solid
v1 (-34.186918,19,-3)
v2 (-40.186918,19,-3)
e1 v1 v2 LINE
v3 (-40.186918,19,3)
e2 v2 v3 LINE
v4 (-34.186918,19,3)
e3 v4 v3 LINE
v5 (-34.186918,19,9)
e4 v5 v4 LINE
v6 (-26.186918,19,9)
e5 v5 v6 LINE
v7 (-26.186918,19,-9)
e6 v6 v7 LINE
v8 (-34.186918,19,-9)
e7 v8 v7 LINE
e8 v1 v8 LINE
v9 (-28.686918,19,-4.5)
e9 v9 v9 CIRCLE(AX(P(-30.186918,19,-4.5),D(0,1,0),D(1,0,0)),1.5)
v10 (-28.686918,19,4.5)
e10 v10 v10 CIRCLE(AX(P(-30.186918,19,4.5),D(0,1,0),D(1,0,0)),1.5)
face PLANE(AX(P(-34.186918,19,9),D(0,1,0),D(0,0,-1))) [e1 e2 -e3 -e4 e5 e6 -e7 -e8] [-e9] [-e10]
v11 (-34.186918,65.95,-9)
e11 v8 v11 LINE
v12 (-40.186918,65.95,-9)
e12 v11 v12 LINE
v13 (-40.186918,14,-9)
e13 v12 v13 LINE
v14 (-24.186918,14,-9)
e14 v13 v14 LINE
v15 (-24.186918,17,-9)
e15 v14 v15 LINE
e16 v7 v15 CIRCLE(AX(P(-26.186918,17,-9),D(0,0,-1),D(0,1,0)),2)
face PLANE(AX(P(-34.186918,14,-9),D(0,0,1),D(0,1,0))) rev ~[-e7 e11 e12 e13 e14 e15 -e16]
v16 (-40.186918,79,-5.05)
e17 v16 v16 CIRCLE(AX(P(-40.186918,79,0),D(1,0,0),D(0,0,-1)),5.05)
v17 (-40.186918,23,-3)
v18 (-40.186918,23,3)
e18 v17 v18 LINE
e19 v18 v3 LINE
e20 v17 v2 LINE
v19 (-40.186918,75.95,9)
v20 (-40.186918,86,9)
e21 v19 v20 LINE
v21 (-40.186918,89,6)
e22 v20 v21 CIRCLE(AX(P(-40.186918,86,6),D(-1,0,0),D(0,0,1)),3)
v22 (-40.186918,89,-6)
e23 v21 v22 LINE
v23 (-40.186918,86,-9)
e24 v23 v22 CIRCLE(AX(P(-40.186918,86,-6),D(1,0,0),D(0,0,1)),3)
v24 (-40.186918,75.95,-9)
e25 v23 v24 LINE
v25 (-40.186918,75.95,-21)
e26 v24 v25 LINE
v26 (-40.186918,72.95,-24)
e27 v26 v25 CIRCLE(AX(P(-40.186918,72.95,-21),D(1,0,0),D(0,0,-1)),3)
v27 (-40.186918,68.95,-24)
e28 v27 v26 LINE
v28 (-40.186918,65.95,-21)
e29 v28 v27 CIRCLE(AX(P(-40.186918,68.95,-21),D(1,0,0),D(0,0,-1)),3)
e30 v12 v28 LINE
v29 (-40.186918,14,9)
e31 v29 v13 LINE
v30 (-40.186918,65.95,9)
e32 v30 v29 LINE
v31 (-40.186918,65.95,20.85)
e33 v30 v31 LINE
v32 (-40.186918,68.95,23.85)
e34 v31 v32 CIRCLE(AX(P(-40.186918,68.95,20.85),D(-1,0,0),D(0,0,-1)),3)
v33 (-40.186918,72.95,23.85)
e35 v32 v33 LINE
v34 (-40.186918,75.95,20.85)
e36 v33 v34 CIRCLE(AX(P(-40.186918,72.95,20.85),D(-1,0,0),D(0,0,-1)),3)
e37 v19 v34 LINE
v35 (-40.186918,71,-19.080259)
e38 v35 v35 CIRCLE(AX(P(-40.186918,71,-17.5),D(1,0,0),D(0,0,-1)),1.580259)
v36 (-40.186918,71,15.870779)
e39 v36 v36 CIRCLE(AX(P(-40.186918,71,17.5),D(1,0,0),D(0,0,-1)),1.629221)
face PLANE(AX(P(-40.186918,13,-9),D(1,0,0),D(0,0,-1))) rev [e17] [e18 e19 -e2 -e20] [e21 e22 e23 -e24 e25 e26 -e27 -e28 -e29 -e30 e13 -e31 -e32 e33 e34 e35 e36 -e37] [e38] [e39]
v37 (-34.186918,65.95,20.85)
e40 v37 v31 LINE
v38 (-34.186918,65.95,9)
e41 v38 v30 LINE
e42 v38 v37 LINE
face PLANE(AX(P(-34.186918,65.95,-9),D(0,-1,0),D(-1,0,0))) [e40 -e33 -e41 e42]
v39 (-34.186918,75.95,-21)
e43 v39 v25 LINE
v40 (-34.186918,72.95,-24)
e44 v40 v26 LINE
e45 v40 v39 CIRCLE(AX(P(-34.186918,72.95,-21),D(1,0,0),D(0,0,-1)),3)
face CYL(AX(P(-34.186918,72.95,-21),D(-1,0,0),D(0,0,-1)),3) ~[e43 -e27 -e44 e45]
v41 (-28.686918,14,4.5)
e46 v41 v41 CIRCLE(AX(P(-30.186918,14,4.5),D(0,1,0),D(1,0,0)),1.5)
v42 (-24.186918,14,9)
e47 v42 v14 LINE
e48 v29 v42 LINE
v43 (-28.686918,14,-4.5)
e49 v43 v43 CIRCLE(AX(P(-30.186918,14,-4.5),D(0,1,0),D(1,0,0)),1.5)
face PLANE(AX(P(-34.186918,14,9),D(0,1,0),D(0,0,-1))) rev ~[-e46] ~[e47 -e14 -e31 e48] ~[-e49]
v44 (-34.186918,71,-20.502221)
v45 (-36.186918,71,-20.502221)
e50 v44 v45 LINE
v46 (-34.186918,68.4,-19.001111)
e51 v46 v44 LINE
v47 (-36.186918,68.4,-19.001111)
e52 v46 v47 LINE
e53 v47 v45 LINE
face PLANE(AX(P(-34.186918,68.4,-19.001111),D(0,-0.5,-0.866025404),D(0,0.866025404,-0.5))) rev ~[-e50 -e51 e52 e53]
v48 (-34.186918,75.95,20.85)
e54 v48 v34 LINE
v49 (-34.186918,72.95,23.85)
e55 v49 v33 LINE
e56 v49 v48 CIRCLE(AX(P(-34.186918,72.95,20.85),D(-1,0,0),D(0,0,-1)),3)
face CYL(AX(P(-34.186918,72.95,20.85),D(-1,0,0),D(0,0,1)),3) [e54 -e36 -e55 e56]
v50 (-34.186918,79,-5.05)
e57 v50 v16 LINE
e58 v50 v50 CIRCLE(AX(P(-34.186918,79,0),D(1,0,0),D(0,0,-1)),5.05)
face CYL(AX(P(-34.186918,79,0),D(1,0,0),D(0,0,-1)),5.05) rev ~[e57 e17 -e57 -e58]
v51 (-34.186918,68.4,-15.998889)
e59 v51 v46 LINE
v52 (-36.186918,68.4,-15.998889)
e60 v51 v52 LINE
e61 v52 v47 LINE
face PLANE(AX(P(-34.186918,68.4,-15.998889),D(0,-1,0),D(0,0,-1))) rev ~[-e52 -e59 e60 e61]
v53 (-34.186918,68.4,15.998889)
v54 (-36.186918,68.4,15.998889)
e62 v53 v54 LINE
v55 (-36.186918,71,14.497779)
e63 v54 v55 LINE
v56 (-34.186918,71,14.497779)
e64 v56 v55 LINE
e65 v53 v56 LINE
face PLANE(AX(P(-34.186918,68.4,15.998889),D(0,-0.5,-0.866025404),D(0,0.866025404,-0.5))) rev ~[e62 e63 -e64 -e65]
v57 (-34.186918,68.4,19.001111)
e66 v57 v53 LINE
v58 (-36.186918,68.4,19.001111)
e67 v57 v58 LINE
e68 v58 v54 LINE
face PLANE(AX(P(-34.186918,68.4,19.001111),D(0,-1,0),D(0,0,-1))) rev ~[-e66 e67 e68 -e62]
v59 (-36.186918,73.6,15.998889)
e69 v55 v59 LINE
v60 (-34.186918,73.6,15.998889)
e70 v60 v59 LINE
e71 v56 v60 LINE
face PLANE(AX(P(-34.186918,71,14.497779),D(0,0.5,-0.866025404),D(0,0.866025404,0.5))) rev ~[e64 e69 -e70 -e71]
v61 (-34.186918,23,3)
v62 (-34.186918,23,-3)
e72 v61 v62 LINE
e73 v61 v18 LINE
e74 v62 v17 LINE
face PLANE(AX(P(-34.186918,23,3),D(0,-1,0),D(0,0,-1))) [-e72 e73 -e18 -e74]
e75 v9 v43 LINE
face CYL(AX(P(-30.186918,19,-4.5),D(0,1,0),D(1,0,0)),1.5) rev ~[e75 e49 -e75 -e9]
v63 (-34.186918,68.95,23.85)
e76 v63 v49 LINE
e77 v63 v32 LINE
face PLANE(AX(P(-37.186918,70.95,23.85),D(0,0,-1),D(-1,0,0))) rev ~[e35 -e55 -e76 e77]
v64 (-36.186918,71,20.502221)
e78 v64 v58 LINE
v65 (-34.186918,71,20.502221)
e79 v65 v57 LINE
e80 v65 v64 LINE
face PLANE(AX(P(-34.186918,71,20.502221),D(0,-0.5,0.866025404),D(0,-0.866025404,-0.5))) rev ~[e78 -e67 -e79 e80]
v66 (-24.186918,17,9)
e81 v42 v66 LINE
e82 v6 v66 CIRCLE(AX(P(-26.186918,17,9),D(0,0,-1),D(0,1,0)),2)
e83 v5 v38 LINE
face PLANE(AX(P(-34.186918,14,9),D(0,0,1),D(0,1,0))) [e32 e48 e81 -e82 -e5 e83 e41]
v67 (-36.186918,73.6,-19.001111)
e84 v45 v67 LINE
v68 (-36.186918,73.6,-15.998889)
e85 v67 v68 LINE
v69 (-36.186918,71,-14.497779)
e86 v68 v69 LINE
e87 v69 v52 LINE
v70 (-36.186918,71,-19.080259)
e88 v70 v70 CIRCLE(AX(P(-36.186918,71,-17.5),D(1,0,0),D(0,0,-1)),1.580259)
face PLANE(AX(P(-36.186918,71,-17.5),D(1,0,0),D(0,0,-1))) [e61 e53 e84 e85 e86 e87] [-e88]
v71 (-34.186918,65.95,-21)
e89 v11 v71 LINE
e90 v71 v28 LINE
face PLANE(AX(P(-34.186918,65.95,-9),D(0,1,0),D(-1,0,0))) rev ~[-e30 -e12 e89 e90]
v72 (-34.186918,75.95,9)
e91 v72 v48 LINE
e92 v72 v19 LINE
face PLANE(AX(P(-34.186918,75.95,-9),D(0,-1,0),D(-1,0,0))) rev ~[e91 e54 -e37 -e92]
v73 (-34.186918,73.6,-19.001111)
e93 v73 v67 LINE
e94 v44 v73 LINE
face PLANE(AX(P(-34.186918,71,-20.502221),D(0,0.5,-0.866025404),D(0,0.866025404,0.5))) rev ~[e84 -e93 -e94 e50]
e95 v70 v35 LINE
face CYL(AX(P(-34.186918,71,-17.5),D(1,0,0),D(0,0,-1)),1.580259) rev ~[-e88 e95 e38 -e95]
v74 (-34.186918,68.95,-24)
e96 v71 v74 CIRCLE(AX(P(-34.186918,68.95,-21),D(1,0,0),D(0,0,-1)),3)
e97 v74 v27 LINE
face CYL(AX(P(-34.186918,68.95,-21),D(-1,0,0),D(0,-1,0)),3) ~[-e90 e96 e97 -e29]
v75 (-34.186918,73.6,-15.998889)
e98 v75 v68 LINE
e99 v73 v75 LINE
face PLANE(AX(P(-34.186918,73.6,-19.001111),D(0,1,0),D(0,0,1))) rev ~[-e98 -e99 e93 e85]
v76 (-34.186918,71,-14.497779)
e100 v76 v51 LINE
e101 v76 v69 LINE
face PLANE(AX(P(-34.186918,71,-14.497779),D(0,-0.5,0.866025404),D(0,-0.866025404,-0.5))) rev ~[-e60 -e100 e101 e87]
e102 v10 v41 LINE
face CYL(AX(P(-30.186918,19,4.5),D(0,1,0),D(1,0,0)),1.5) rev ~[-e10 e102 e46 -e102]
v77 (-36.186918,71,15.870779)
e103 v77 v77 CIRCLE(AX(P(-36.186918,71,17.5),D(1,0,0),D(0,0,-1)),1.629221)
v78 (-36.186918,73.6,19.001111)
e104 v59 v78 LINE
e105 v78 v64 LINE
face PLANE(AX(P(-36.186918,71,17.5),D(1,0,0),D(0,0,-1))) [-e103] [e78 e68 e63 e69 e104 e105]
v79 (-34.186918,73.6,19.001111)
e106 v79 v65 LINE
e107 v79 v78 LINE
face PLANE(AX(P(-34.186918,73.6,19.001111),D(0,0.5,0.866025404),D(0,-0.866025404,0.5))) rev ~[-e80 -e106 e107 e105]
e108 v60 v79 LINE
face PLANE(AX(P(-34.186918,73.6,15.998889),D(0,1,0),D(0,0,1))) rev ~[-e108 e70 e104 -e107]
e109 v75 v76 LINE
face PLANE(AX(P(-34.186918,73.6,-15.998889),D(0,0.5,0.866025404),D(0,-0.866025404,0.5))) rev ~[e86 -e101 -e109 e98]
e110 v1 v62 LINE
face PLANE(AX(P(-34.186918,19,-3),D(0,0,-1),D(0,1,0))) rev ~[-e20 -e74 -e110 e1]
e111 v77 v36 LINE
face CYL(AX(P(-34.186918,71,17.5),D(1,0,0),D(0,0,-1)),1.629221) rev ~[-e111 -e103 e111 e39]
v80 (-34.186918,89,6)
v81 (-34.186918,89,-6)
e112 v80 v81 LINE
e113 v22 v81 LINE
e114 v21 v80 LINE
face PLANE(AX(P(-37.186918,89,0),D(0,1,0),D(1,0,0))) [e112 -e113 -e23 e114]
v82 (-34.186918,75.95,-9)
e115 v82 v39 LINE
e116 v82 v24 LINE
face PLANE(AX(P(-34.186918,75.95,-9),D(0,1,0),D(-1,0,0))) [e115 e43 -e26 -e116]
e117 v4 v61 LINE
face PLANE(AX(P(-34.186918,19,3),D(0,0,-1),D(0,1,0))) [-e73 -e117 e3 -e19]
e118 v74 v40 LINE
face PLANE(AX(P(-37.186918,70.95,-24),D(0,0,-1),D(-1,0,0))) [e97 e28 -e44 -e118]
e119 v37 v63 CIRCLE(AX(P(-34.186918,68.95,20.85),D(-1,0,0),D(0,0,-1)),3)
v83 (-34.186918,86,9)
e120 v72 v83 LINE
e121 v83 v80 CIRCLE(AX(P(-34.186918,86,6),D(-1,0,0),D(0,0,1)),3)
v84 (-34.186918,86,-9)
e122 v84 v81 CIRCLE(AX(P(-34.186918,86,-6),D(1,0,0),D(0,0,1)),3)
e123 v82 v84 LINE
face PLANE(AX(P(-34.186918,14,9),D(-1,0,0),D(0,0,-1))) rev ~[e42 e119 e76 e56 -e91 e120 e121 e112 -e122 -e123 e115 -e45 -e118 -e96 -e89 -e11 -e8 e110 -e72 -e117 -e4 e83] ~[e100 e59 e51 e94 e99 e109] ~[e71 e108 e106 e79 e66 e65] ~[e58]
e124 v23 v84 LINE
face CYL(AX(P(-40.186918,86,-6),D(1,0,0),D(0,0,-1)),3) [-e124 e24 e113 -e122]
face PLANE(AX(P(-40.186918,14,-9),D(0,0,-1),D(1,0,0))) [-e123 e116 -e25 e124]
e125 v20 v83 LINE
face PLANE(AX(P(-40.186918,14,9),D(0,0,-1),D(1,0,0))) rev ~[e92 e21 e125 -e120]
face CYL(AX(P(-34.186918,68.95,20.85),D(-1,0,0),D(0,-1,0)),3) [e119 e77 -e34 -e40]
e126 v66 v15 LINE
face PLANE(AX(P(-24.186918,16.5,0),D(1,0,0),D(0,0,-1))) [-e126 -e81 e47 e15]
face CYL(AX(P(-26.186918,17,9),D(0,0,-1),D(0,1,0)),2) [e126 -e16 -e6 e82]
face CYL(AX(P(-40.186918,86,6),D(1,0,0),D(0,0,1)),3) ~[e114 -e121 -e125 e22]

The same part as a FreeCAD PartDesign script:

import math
import FreeCAD as App
import Part
import Sketcher
Q = App.Units.Quantity


def edges_at(feature, points):
    """Names of the edges that pass closest to the given points."""
    edges = feature.Shape.Edges
    near = lambda p: min(range(len(edges)), key=lambda i: edges[i].distToShape(Part.Vertex(*p))[0])
    return sorted({f"Edge{near(p) + 1}" for p in points})

doc = App.newDocument("Part")
body = doc.addObject("PartDesign::Body", "Body")

sketch1 = doc.addObject("Sketcher::SketchObject", "Sketch")
body.addObject(sketch1)
sketch1.AttachmentSupport = (doc.XZ_Plane, [""])
sketch1.MapMode = "FlatFace"
sketch1.addGeometry([
    Part.Circle(App.Vector(0, 0, 0), App.Vector(0, 0, 1), 17),
    Part.Circle(App.Vector(0, 0, 0), App.Vector(0, 0, 1), 12),
], False)
sketch1.addConstraint([
    Sketcher.Constraint("Coincident", 0, 3, -1, 1),
    Sketcher.Constraint("Coincident", 1, 3, -1, 1),
    Sketcher.Constraint("Diameter", 0, 34.9),
    Sketcher.Constraint("Diameter", 1, 24.9),
])
pad1 = doc.addObject("PartDesign::Pad", "Pad")
body.addObject(pad1)
pad1.Profile = sketch1
pad1.Length = 8
pad1.Reversed = True

sketch2 = doc.addObject("Sketcher::SketchObject", "Sketch001")
body.addObject(sketch2)
sketch2.AttachmentSupport = (doc.XZ_Plane, [""])
sketch2.MapMode = "FlatFace"
sketch2.AttachmentOffset = App.Placement(App.Vector(0, 0, -8), App.Rotation())
sketch2.addGeometry([
    Part.Circle(App.Vector(0, 0, 0), App.Vector(0, 0, 1), 20),
    Part.Circle(App.Vector(0, 0, 0), App.Vector(0, 0, 1), 12),
], False)
sketch2.addConstraint([
    Sketcher.Constraint("Coincident", 0, 3, -1, 1),
    Sketcher.Constraint("Coincident", 1, 3, -1, 1),
    Sketcher.Constraint("Diameter", 0, 40.0),
    Sketcher.Constraint("Diameter", 1, 24.9),
])
pad2 = doc.addObject("PartDesign::Pad", "Pad001")
body.addObject(pad2)
pad2.Profile = sketch2
pad2.Length = 2
pad2.Reversed = True

sketch3 = doc.addObject("Sketcher::SketchObject", "Sketch002")
body.addObject(sketch3)
sketch3.AttachmentSupport = (doc.XZ_Plane, [""])
sketch3.MapMode = "FlatFace"
sketch3.AttachmentOffset = App.Placement(App.Vector(0, 0, -10), App.Rotation())
sketch3.addGeometry([
    Part.Circle(App.Vector(0, 0, 0), App.Vector(0, 0, 1), 32),
    Part.Circle(App.Vector(0, 0, 0), App.Vector(0, 0, 1), 12),
], False)
sketch3.addConstraint([
    Sketcher.Constraint("Coincident", 0, 3, -1, 1),
    Sketcher.Constraint("Coincident", 1, 3, -1, 1),
    Sketcher.Constraint("Diameter", 0, 65.0),
    Sketcher.Constraint("Diameter", 1, 24.9),
])
pad3 = doc.addObject("PartDesign::Pad", "Pad002")
body.addObject(pad3)
pad3.Profile = sketch3
pad3.Length = 4
pad3.Reversed = True
doc.recompute()

fillet = doc.addObject("PartDesign::Fillet", "Fillet")
body.addObject(fillet)
fillet.Base = (pad3, edges_at(pad3, [(-32.5, 14, 0)]))
fillet.Radius = 1

sketch4 = doc.addObject("Sketcher::SketchObject", "Sketch003")
body.addObject(sketch4)
sketch4.AttachmentSupport = (doc.XZ_Plane, [""])
sketch4.MapMode = "FlatFace"
sketch4.AttachmentOffset = App.Placement(App.Vector(0, 0, -10), App.Rotation())
sketch4.addGeometry([
    Part.LineSegment(App.Vector(30, -9, 0), App.Vector(30, 9, 0)),
    Part.LineSegment(App.Vector(30, 9, 0), App.Vector(40, 9, 0)),
    Part.LineSegment(App.Vector(40, 9, 0), App.Vector(40, -9, 0)),
    Part.LineSegment(App.Vector(40, -9, 0), App.Vector(30, -9, 0)),
    Part.LineSegment(App.Vector(-40, -9, 0), App.Vector(-40, 9, 0)),
    Part.LineSegment(App.Vector(-40, 9, 0), App.Vector(-30, 9, 0)),
    Part.LineSegment(App.Vector(-30, 9, 0), App.Vector(-30, -9, 0)),
    Part.LineSegment(App.Vector(-30, -9, 0), App.Vector(-40, -9, 0)),
], False)
sketch4.addConstraint([
    Sketcher.Constraint("Coincident", 0, 2, 1, 1),
    Sketcher.Constraint("Coincident", 1, 2, 2, 1),
    Sketcher.Constraint("Coincident", 2, 2, 3, 1),
    Sketcher.Constraint("Coincident", 3, 2, 0, 1),
    Sketcher.Constraint("Coincident", 4, 2, 5, 1),
    Sketcher.Constraint("Coincident", 5, 2, 6, 1),
    Sketcher.Constraint("Coincident", 6, 2, 7, 1),
    Sketcher.Constraint("Coincident", 7, 2, 4, 1),
    Sketcher.Constraint("Vertical", 0),
    Sketcher.Constraint("Horizontal", 1),
    Sketcher.Constraint("Vertical", 2),
    Sketcher.Constraint("Horizontal", 3),
    Sketcher.Constraint("Vertical", 4),
    Sketcher.Constraint("Horizontal", 5),
    Sketcher.Constraint("Vertical", 6),
    Sketcher.Constraint("Horizontal", 7),
    Sketcher.Constraint("Symmetric", 2, 2, 4, 2, -1, 1),
    Sketcher.Constraint("Symmetric", 0, 2, 6, 2, -1, 1),
    Sketcher.Constraint("Horizontal", 1, 2, 4, 2),
    Sketcher.Constraint("DistanceX", 1, 1, 1, 2, 10.0),
    Sketcher.Constraint("DistanceY", 0, 1, 0, 2, 18.0),
    Sketcher.Constraint("DistanceX", -1, 1, 0, 2, 30.186918),
])
pad4 = doc.addObject("PartDesign::Pad", "Pad003")
body.addObject(pad4)
pad4.Profile = sketch4
pad4.Length = 4
pad4.Reversed = True

sketch5 = doc.addObject("Sketcher::SketchObject", "Sketch004")
body.addObject(sketch5)
sketch5.AttachmentSupport = (doc.XZ_Plane, [""])
sketch5.MapMode = "FlatFace"
sketch5.AttachmentOffset = App.Placement(App.Vector(0, 0, -14), App.Rotation())
sketch5.addGeometry([
    Part.LineSegment(App.Vector(-40, -9, 0), App.Vector(-40, 9, 0)),
    Part.LineSegment(App.Vector(-40, 9, 0), App.Vector(-34, 9, 0)),
    Part.LineSegment(App.Vector(-34, 9, 0), App.Vector(-34, -9, 0)),
    Part.LineSegment(App.Vector(-34, -9, 0), App.Vector(-40, -9, 0)),
    Part.LineSegment(App.Vector(34, -9, 0), App.Vector(34, 9, 0)),
    Part.LineSegment(App.Vector(34, 9, 0), App.Vector(40, 9, 0)),
    Part.LineSegment(App.Vector(40, 9, 0), App.Vector(40, -9, 0)),
    Part.LineSegment(App.Vector(40, -9, 0), App.Vector(34, -9, 0)),
], False)
sketch5.addConstraint([
    Sketcher.Constraint("Coincident", 0, 2, 1, 1),
    Sketcher.Constraint("Coincident", 1, 2, 2, 1),
    Sketcher.Constraint("Coincident", 2, 2, 3, 1),
    Sketcher.Constraint("Coincident", 3, 2, 0, 1),
    Sketcher.Constraint("Coincident", 4, 2, 5, 1),
    Sketcher.Constraint("Coincident", 5, 2, 6, 1),
    Sketcher.Constraint("Coincident", 6, 2, 7, 1),
    Sketcher.Constraint("Coincident", 7, 2, 4, 1),
    Sketcher.Constraint("Vertical", 0),
    Sketcher.Constraint("Horizontal", 1),
    Sketcher.Constraint("Vertical", 2),
    Sketcher.Constraint("Horizontal", 3),
    Sketcher.Constraint("Vertical", 4),
    Sketcher.Constraint("Horizontal", 5),
    Sketcher.Constraint("Vertical", 6),
    Sketcher.Constraint("Horizontal", 7),
    Sketcher.Constraint("Symmetric", 2, 2, 4, 2, -1, 1),
    Sketcher.Constraint("Symmetric", 0, 2, 6, 2, -1, 1),
    Sketcher.Constraint("Horizontal", 1, 2, 4, 2),
    Sketcher.Constraint("DistanceX", 1, 1, 1, 2, 6.0),
    Sketcher.Constraint("DistanceY", 0, 1, 0, 2, 18.0),
    Sketcher.Constraint("DistanceX", 0, 2, -1, 1, 40.186918),
])
pad5 = doc.addObject("PartDesign::Pad", "Pad004")
body.addObject(pad5)
pad5.Profile = sketch5
pad5.Type = "TwoLengths"
pad5.Length = 75
pad5.Length2 = 4
pad5.Reversed = True

sketch6 = doc.addObject("Sketcher::SketchObject", "Sketch005")
body.addObject(sketch6)
sketch6.AttachmentSupport = (doc.YZ_Plane, [""])
sketch6.MapMode = "FlatFace"
sketch6.AttachmentOffset = App.Placement(App.Vector(0, 0, 34.186918), App.Rotation())
sketch6.addGeometry(Part.Circle(App.Vector(79, 0, 0), App.Vector(0, 0, 1), 5), False)
sketch6.addConstraint([
    Sketcher.Constraint("PointOnObject", 0, 3, -1),
    Sketcher.Constraint("Diameter", 0, 10.1),
    Sketcher.Constraint("DistanceX", -1, 1, 0, 3, 79.0),
])
pocket1 = doc.addObject("PartDesign::Pocket", "Pocket")
body.addObject(pocket1)
pocket1.Profile = sketch6
pocket1.Type = "ThroughAll"
pocket1.Midplane = True

sketch7 = doc.addObject("Sketcher::SketchObject", "Sketch006")
body.addObject(sketch7)
sketch7.AttachmentSupport = (doc.XY_Plane, [""])
sketch7.MapMode = "FlatFace"
sketch7.AttachmentOffset = App.Placement(App.Vector(0, 0, -9), App.Rotation())
sketch7.addGeometry([
    Part.LineSegment(App.Vector(-34, 76, 0), App.Vector(-34, 66, 0)),
    Part.LineSegment(App.Vector(-34, 66, 0), App.Vector(-40, 66, 0)),
    Part.LineSegment(App.Vector(-40, 66, 0), App.Vector(-40, 76, 0)),
    Part.LineSegment(App.Vector(-40, 76, 0), App.Vector(-34, 76, 0)),
], False)
sketch7.addConstraint([
    Sketcher.Constraint("Coincident", 0, 2, 1, 1),
    Sketcher.Constraint("Coincident", 1, 2, 2, 1),
    Sketcher.Constraint("Coincident", 2, 2, 3, 1),
    Sketcher.Constraint("Coincident", 3, 2, 0, 1),
    Sketcher.Constraint("Vertical", 0),
    Sketcher.Constraint("Horizontal", 1),
    Sketcher.Constraint("Vertical", 2),
    Sketcher.Constraint("Horizontal", 3),
    Sketcher.Constraint("DistanceX", 1, 2, 1, 1, 6.0),
    Sketcher.Constraint("DistanceY", 0, 2, 0, 1, 10.0),
    Sketcher.Constraint("DistanceY", -1, 1, 0, 2, 65.95),
    Sketcher.Constraint("DistanceX", 0, 2, -1, 1, 34.186918),
])
pad6 = doc.addObject("PartDesign::Pad", "Pad005")
body.addObject(pad6)
pad6.Profile = sketch7
pad6.Type = "TwoLengths"
pad6.Length = 15
pad6.Length2 = 32.85
pad6.Reversed = True

sketch8 = doc.addObject("Sketcher::SketchObject", "Sketch007")
body.addObject(sketch8)
sketch8.AttachmentSupport = (doc.YZ_Plane, [""])
sketch8.MapMode = "FlatFace"
sketch8.AttachmentOffset = App.Placement(App.Vector(0, 0, -34.186918), App.Rotation())
sketch8.addGeometry([
    Part.Circle(App.Vector(71, 17.5, 0), App.Vector(0, 0, 1), 1.6),
    Part.Circle(App.Vector(71, -17.5, 0), App.Vector(0, 0, 1), 1.6),
], False)
sketch8.addConstraint([
    Sketcher.Constraint("Symmetric", 0, 3, 1, 3, -1),
    Sketcher.Constraint("DistanceX", -1, 1, 0, 3, 71.0),
    Sketcher.Constraint("DistanceY", 1, 3, 0, 3, 35.0),
    Sketcher.Constraint("Diameter", 0, 3.258441),
    Sketcher.Constraint("Diameter", 1, 3.160518),
])
pocket2 = doc.addObject("PartDesign::Pocket", "Pocket001")
body.addObject(pocket2)
pocket2.Profile = sketch8
pocket2.Length = 10

sketch9 = doc.addObject("Sketcher::SketchObject", "Sketch008")
body.addObject(sketch9)
sketch9.AttachmentSupport = (doc.YZ_Plane, [""])
sketch9.MapMode = "FlatFace"
sketch9.AttachmentOffset = App.Placement(App.Vector(0, 0, -34.186918), App.Rotation())
sketch9.addGeometry(Part.Circle(App.Vector(79, 0, 0), App.Vector(0, 0, 1), 5), False)
sketch9.addConstraint([
    Sketcher.Constraint("PointOnObject", 0, 3, -1),
    Sketcher.Constraint("Diameter", 0, 10.1),
    Sketcher.Constraint("DistanceX", -1, 1, 0, 3, 79.0),
])
pocket3 = doc.addObject("PartDesign::Pocket", "Pocket002")
body.addObject(pocket3)
pocket3.Profile = sketch9
pocket3.Type = "ThroughAll"
pocket3.Midplane = True

sketch10 = doc.addObject("Sketcher::SketchObject", "Sketch009")
body.addObject(sketch10)
sketch10.AttachmentSupport = (doc.YZ_Plane, [""])
sketch10.MapMode = "FlatFace"
sketch10.AttachmentOffset = App.Placement(App.Vector(0, 0, 34.186918), App.Rotation())
sketch10.addGeometry([
    Part.LineSegment(App.Vector(17.2, -4.9, 0), App.Vector(14, -4.9, 0)),
    Part.LineSegment(App.Vector(14, -4.9, 0), App.Vector(14, 4.9, 0)),
    Part.LineSegment(App.Vector(14, 4.9, 0), App.Vector(17.2, 4.9, 0)),
    Part.LineSegment(App.Vector(17.2, 4.9, 0), App.Vector(17.2, -4.9, 0)),
], False)
sketch10.addConstraint([
    Sketcher.Constraint("Coincident", 0, 2, 1, 1),
    Sketcher.Constraint("Coincident", 1, 2, 2, 1),
    Sketcher.Constraint("Coincident", 2, 2, 3, 1),
    Sketcher.Constraint("Coincident", 3, 2, 0, 1),
    Sketcher.Constraint("Horizontal", 0),
    Sketcher.Constraint("Vertical", 1),
    Sketcher.Constraint("Horizontal", 2),
    Sketcher.Constraint("Vertical", 3),
    Sketcher.Constraint("DistanceX", -1, 1, 0, 2, 14.0),
    Sketcher.Constraint("DistanceY", 0, 2, -1, 1, 4.891298),
    Sketcher.Constraint("DistanceY", -1, 1, 1, 2, 4.891298),
    Sketcher.Constraint("DistanceX", 0, 2, 0, 1, 3.234518),
])
pocket4 = doc.addObject("PartDesign::Pocket", "Pocket003")
body.addObject(pocket4)
pocket4.Profile = sketch10
pocket4.Type = "ThroughAll"
pocket4.Midplane = True
doc.recompute()

fillet2 = doc.addObject("PartDesign::Fillet", "Fillet001")
body.addObject(fillet2)
fillet2.Base = (pocket4, edges_at(pocket4, [
    (-37.187, 65.95, 23.85),
    (-37.187, 75.95, 23.85),
    (-37.187, 65.95, -24),
    (-37.187, 75.95, -24),
    (-37.187, 89, -9),
    (-37.187, 89, 9),
]))
fillet2.Radius = 3
doc.recompute()

fillet3 = doc.addObject("PartDesign::Fillet", "Fillet002")
body.addObject(fillet3)
fillet3.Base = (fillet2, edges_at(fillet2, [(40.187, 10, 0), (-40.187, 10, 0)]))
fillet3.Radius = 3

sketch11 = doc.addObject("Sketcher::SketchObject", "Sketch010")
body.addObject(sketch11)
sketch11.AttachmentSupport = (doc.YZ_Plane, [""])
sketch11.MapMode = "FlatFace"
sketch11.AttachmentOffset = App.Placement(App.Vector(0, 0, 40.186918), App.Rotation())
sketch11.addGeometry([
    Part.LineSegment(App.Vector(10, 67, 0), App.Vector(-14, 67, 0)),
    Part.LineSegment(App.Vector(-14, 67, 0), App.Vector(-14, -42, 0)),
    Part.LineSegment(App.Vector(-14, -42, 0), App.Vector(10, -42, 0)),
    Part.LineSegment(App.Vector(10, -42, 0), App.Vector(10, 67, 0)),
], False)
sketch11.addConstraint([
    Sketcher.Constraint("Coincident", 0, 2, 1, 1),
    Sketcher.Constraint("Coincident", 1, 2, 2, 1),
    Sketcher.Constraint("Coincident", 2, 2, 3, 1),
    Sketcher.Constraint("Coincident", 3, 2, 0, 1),
    Sketcher.Constraint("Horizontal", 0),
    Sketcher.Constraint("Vertical", 1),
    Sketcher.Constraint("Horizontal", 2),
    Sketcher.Constraint("Vertical", 3),
    Sketcher.Constraint("DistanceX", -1, 1, 2, 2, 10.0),
    Sketcher.Constraint("DistanceY", 1, 2, 1, 1, 108.791398),
    Sketcher.Constraint("DistanceX", 0, 2, 0, 1, 24.041848),
    Sketcher.Constraint("DistanceY", 1, 2, -1, 1, 41.892781),
])
pocket5 = doc.addObject("PartDesign::Pocket", "Pocket004")
body.addObject(pocket5)
pocket5.Profile = sketch11
pocket5.Length = 110.678

sketch12 = doc.addObject("Sketcher::SketchObject", "Sketch011")
body.addObject(sketch12)
sketch12.AttachmentSupport = (doc.XZ_Plane, [""])
sketch12.MapMode = "FlatFace"
sketch12.AttachmentOffset = App.Placement(App.Vector(0, 0, -14), App.Rotation())
sketch12.addGeometry(Part.Circle(App.Vector(0, 0, 0), App.Vector(0, 0, 1), 22), False)
sketch12.addConstraint([
    Sketcher.Constraint("Coincident", 0, 3, -1, 1),
    Sketcher.Constraint("Diameter", 0, 44.0),
])
pocket6 = doc.addObject("PartDesign::Pocket", "Pocket005")
body.addObject(pocket6)
pocket6.Profile = sketch12
pocket6.Length = 4
pocket6.Reversed = True

sketch13 = doc.addObject("Sketcher::SketchObject", "Sketch012")
body.addObject(sketch13)
sketch13.AttachmentSupport = (doc.XZ_Plane, [""])
sketch13.MapMode = "FlatFace"
sketch13.AttachmentOffset = App.Placement(App.Vector(0, 0, -14), App.Rotation())
sketch13.addGeometry([
    Part.Circle(App.Vector(0, 0, 0), App.Vector(0, 0, 1), 22),
    Part.Circle(App.Vector(-15.2, 8.8, 0), App.Vector(0, 0, 1), 2.8),
    Part.Circle(App.Vector(15.2, 8.8, 0), App.Vector(0, 0, 1), 2.8),
    Part.Circle(App.Vector(0, 0, 0), App.Vector(0, 0, 1), 11),
    Part.Circle(App.Vector(0, -17.5, 0), App.Vector(0, 0, 1), 2.8),
], False)
sketch13.addConstraint([
    Sketcher.Constraint("Coincident", 0, 3, -1, 1),
    Sketcher.Constraint("Coincident", 3, 3, -1, 1),
    Sketcher.Constraint("Equal", 1, 2),
    Sketcher.Constraint("Equal", 2, 4),
    Sketcher.Constraint("Symmetric", 1, 3, 2, 3, -2),
    Sketcher.Constraint("PointOnObject", 4, 3, -2),
    Sketcher.Constraint("Diameter", 0, 44.0),
    Sketcher.Constraint("Diameter", 3, 22.0),
    Sketcher.Constraint("Diameter", 1, 5.5),
    Sketcher.Constraint("DistanceY", 4, 3, -1, 1, 17.5),
    Sketcher.Constraint("DistanceY", -1, 1, 1, 3, 8.75),
    Sketcher.Constraint("DistanceX", 1, 3, 2, 3, 30.310889),
])
pad7 = doc.addObject("PartDesign::Pad", "Pad006")
body.addObject(pad7)
pad7.Profile = sketch13
pad7.Length = 4
doc.recompute()

fillet4 = doc.addObject("PartDesign::Fillet", "Fillet003")
body.addObject(fillet4)
fillet4.Base = (pad7, edges_at(pad7, [(37.187, 89, 9), (37.187, 89, -9)]))
fillet4.Radius = 3

sketch14 = doc.addObject("Sketcher::SketchObject", "Sketch013")
body.addObject(sketch14)
sketch14.AttachmentSupport = (doc.XZ_Plane, [""])
sketch14.MapMode = "FlatFace"
sketch14.AttachmentOffset = App.Placement(App.Vector(0, 0, -10), App.Rotation())
sketch14.addGeometry([
    Part.LineSegment(App.Vector(-31, 9, 0), App.Vector(-20, 9, 0)),
    Part.ArcOfCircle(Part.Circle(App.Vector(0, 0, 0), App.Vector(0, 0, 1), 22), math.radians(24), math.radians(156)),
    Part.LineSegment(App.Vector(20, 9, 0), App.Vector(31, 9, 0)),
    Part.ArcOfCircle(Part.Circle(App.Vector(0, 0, 0), App.Vector(0, 0, 1), 32), math.radians(16), math.radians(164)),
], False)
sketch14.addConstraint([
    Sketcher.Constraint("Coincident", 0, 2, 1, 2),
    Sketcher.Constraint("Coincident", 1, 1, 2, 1),
    Sketcher.Constraint("Coincident", 2, 2, 3, 1),
    Sketcher.Constraint("Coincident", 3, 2, 0, 1),
    Sketcher.Constraint("Horizontal", 0),
    Sketcher.Constraint("Horizontal", 2),
    Sketcher.Constraint("Coincident", 1, 3, -1, 1),
    Sketcher.Constraint("Coincident", 3, 3, -1, 1),
    Sketcher.Constraint("Horizontal", 0, 2, 1, 1),
    Sketcher.Constraint("Radius", 1, 22.2),
    Sketcher.Constraint("Radius", 3, 32.5),
    Sketcher.Constraint("DistanceY", -1, 1, 0, 2, 9.0),
])
pocket7 = doc.addObject("PartDesign::Pocket", "Pocket006")
body.addObject(pocket7)
pocket7.Profile = sketch14
pocket7.Length = 5
doc.recompute()

mirrored = doc.addObject("PartDesign::Mirrored", "Mirrored")
body.addObject(mirrored)
mirrored.Originals = [pocket7]
mirrored.MirrorPlane = (doc.XY_Plane, [""])
body.Tip = mirrored
doc.recompute()

fillet5 = doc.addObject("PartDesign::Fillet", "Fillet004")
body.addObject(fillet5)
fillet5.Base = (mirrored, edges_at(mirrored, [(0, 14, 22.2), (0, 14, -22.2)]))
fillet5.Radius = 1

sketch15 = doc.addObject("Sketcher::SketchObject", "Sketch014")
body.addObject(sketch15)
sketch15.AttachmentSupport = (doc.XZ_Plane, [""])
sketch15.MapMode = "FlatFace"
sketch15.AttachmentOffset = App.Placement(App.Vector(0, 0, -13), App.Rotation())
sketch15.addGeometry([
    Part.LineSegment(App.Vector(20, -9, 0), App.Vector(40, -9, 0)),
    Part.LineSegment(App.Vector(40, -9, 0), App.Vector(40, 9, 0)),
    Part.LineSegment(App.Vector(40, 9, 0), App.Vector(20, 9, 0)),
    Part.ArcOfCircle(Part.Circle(App.Vector(0, 0, 0), App.Vector(0, 0, 1), 22), math.radians(-24), math.radians(24)),
], False)
sketch15.addConstraint([
    Sketcher.Constraint("Coincident", 0, 2, 1, 1),
    Sketcher.Constraint("Coincident", 1, 2, 2, 1),
    Sketcher.Constraint("Coincident", 2, 2, 3, 2),
    Sketcher.Constraint("Coincident", 3, 1, 0, 1),
    Sketcher.Constraint("Horizontal", 0),
    Sketcher.Constraint("Vertical", 1),
    Sketcher.Constraint("Horizontal", 2),
    Sketcher.Constraint("Coincident", 3, 3, -1, 1),
    Sketcher.Constraint("Vertical", 2, 2, 3, 1),
    Sketcher.Constraint("Radius", 3, 22.2),
    Sketcher.Constraint("DistanceY", 1, 1, 1, 2, 18.0),
    Sketcher.Constraint("DistanceX", 0, 1, 0, 2, 19.893076),
])
pad8 = doc.addObject("PartDesign::Pad", "Pad007")
body.addObject(pad8)
pad8.Profile = sketch15
pad8.Length = 9.4
doc.recompute()

fillet6 = doc.addObject("PartDesign::Fillet", "Fillet005")
body.addObject(fillet6)
fillet6.Base = (pad8, edges_at(pad8, [(40.187, 3.6, 0)]))
fillet6.Radius = 3
doc.recompute()

mirrored2 = doc.addObject("PartDesign::Mirrored", "Mirrored001")
body.addObject(mirrored2)
mirrored2.Originals = [pad8]
mirrored2.MirrorPlane = (doc.YZ_Plane, [""])
body.Tip = mirrored2
doc.recompute()

fillet7 = doc.addObject("PartDesign::Fillet", "Fillet006")
body.addObject(fillet7)
fillet7.Base = (mirrored2, edges_at(mirrored2, [(-40.187, 3.6, 0)]))
fillet7.Radius = 3

sketch16 = doc.addObject("Sketcher::SketchObject", "Sketch015")
body.addObject(sketch16)
sketch16.AttachmentSupport = (doc.YZ_Plane, [""])
sketch16.MapMode = "FlatFace"
sketch16.AttachmentOffset = App.Placement(App.Vector(0, 0, 34.186918), App.Rotation())
sketch16.addGeometry(Part.Circle(App.Vector(79, 0, 0), App.Vector(0, 0, 1), 6), False)
sketch16.addConstraint([
    Sketcher.Constraint("PointOnObject", 0, 3, -1),
    Sketcher.Constraint("Diameter", 0, 12.1),
    Sketcher.Constraint("DistanceX", -1, 1, 0, 3, 79.0),
])
pocket8 = doc.addObject("PartDesign::Pocket", "Pocket007")
body.addObject(pocket8)
pocket8.Profile = sketch16
pocket8.Length = 3.8
pocket8.Reversed = True

sketch17 = doc.addObject("Sketcher::SketchObject", "Sketch016")
body.addObject(sketch17)
sketch17.AttachmentSupport = (doc.YZ_Plane, [""])
sketch17.MapMode = "FlatFace"
sketch17.AttachmentOffset = App.Placement(App.Vector(0, 0, 40.186918), App.Rotation())
sketch17.addGeometry([
    Part.LineSegment(App.Vector(99, 44, 0), App.Vector(79, 44, 0)),
    Part.LineSegment(App.Vector(79, 44, 0), App.Vector(79, -44, 0)),
    Part.LineSegment(App.Vector(79, -44, 0), App.Vector(99, -44, 0)),
    Part.LineSegment(App.Vector(99, -44, 0), App.Vector(99, 44, 0)),
], False)
sketch17.addConstraint([
    Sketcher.Constraint("Coincident", 0, 2, 1, 1),
    Sketcher.Constraint("Coincident", 1, 2, 2, 1),
    Sketcher.Constraint("Coincident", 2, 2, 3, 1),
    Sketcher.Constraint("Coincident", 3, 2, 0, 1),
    Sketcher.Constraint("Horizontal", 0),
    Sketcher.Constraint("Vertical", 1),
    Sketcher.Constraint("Horizontal", 2),
    Sketcher.Constraint("Vertical", 3),
    Sketcher.Constraint("DistanceX", -1, 1, 0, 2, 79.0),
    Sketcher.Constraint("DistanceX", 0, 2, 0, 1, 20.386854),
    Sketcher.Constraint("DistanceY", 1, 2, 1, 1, 88.746976),
    Sketcher.Constraint("DistanceY", -1, 1, 0, 2, 44.373488),
])
pocket9 = doc.addObject("PartDesign::Pocket", "Pocket008")
body.addObject(pocket9)
pocket9.Profile = sketch17
pocket9.Length = 10

sketch18 = doc.addObject("Sketcher::SketchObject", "Sketch017")
body.addObject(sketch18)
sketch18.AttachmentSupport = (doc.XZ_Plane, [""])
sketch18.MapMode = "FlatFace"
sketch18.AttachmentOffset = App.Placement(App.Vector(0, 0, -79), App.Rotation())
sketch18.addGeometry([
    Part.LineSegment(App.Vector(34, 6, 0), App.Vector(34, 16, 0)),
    Part.LineSegment(App.Vector(34, 16, 0), App.Vector(40, 16, 0)),
    Part.LineSegment(App.Vector(40, 16, 0), App.Vector(40, 6, 0)),
    Part.LineSegment(App.Vector(40, 6, 0), App.Vector(34, 6, 0)),
    Part.LineSegment(App.Vector(34, -16, 0), App.Vector(34, -6, 0)),
    Part.LineSegment(App.Vector(34, -6, 0), App.Vector(40, -6, 0)),
    Part.LineSegment(App.Vector(40, -6, 0), App.Vector(40, -16, 0)),
    Part.LineSegment(App.Vector(40, -16, 0), App.Vector(34, -16, 0)),
], False)
sketch18.addConstraint([
    Sketcher.Constraint("Coincident", 0, 2, 1, 1),
    Sketcher.Constraint("Coincident", 1, 2, 2, 1),
    Sketcher.Constraint("Coincident", 2, 2, 3, 1),
    Sketcher.Constraint("Coincident", 3, 2, 0, 1),
    Sketcher.Constraint("Coincident", 4, 2, 5, 1),
    Sketcher.Constraint("Coincident", 5, 2, 6, 1),
    Sketcher.Constraint("Coincident", 6, 2, 7, 1),
    Sketcher.Constraint("Coincident", 7, 2, 4, 1),
    Sketcher.Constraint("Vertical", 0),
    Sketcher.Constraint("Horizontal", 1),
    Sketcher.Constraint("Vertical", 2),
    Sketcher.Constraint("Horizontal", 3),
    Sketcher.Constraint("Vertical", 4),
    Sketcher.Constraint("Horizontal", 5),
    Sketcher.Constraint("Vertical", 6),
    Sketcher.Constraint("Horizontal", 7),
    Sketcher.Constraint("Symmetric", 3, 2, 4, 2, -1),
    Sketcher.Constraint("Symmetric", 1, 2, 6, 2, -1),
    Sketcher.Constraint("DistanceX", 1, 1, 1, 2, 6.0),
    Sketcher.Constraint("DistanceY", 6, 2, 1, 2, 33.0),
    Sketcher.Constraint("DistanceY", 0, 1, 0, 2, 10.45),
    Sketcher.Constraint("DistanceX", -1, 1, 0, 2, 34.186918),
])
pad9 = doc.addObject("PartDesign::Pad", "Pad008")
body.addObject(pad9)
pad9.Profile = sketch18
pad9.Length = 5
doc.recompute()

fillet8 = doc.addObject("PartDesign::Fillet", "Fillet007")
body.addObject(fillet8)
fillet8.Base = (pad9, edges_at(pad9, [(37.187, 74, 16.5), (37.187, 74, -16.5)]))
fillet8.Radius = 2

sketch19 = doc.addObject("Sketcher::SketchObject", "Sketch018")
body.addObject(sketch19)
sketch19.AttachmentSupport = (doc.YZ_Plane, [""])
sketch19.MapMode = "FlatFace"
sketch19.AttachmentOffset = App.Placement(App.Vector(0, 0, -34.186918), App.Rotation())
sketch19.addGeometry([
    Part.LineSegment(App.Vector(68.4, 16, 0), App.Vector(71, 14.5, 0)),
    Part.LineSegment(App.Vector(71, 14.5, 0), App.Vector(73.6, 16, 0)),
    Part.LineSegment(App.Vector(73.6, 16, 0), App.Vector(73.6, 19, 0)),
    Part.LineSegment(App.Vector(73.6, 19, 0), App.Vector(71, 20.5, 0)),
    Part.LineSegment(App.Vector(71, 20.5, 0), App.Vector(68.4, 19, 0)),
    Part.LineSegment(App.Vector(68.4, 19, 0), App.Vector(68.4, 16, 0)),
    Part.LineSegment(App.Vector(71, -20.5, 0), App.Vector(73.6, -19, 0)),
    Part.LineSegment(App.Vector(73.6, -19, 0), App.Vector(73.6, -16, 0)),
    Part.LineSegment(App.Vector(73.6, -16, 0), App.Vector(71, -14.5, 0)),
    Part.LineSegment(App.Vector(71, -14.5, 0), App.Vector(68.4, -16, 0)),
    Part.LineSegment(App.Vector(68.4, -16, 0), App.Vector(68.4, -19, 0)),
    Part.LineSegment(App.Vector(68.4, -19, 0), App.Vector(71, -20.5, 0)),
], False)
sketch19.addConstraint([
    Sketcher.Constraint("Coincident", 0, 2, 1, 1),
    Sketcher.Constraint("Coincident", 1, 2, 2, 1),
    Sketcher.Constraint("Coincident", 2, 2, 3, 1),
    Sketcher.Constraint("Coincident", 3, 2, 4, 1),
    Sketcher.Constraint("Coincident", 4, 2, 5, 1),
    Sketcher.Constraint("Coincident", 5, 2, 0, 1),
    Sketcher.Constraint("Coincident", 6, 2, 7, 1),
    Sketcher.Constraint("Coincident", 7, 2, 8, 1),
    Sketcher.Constraint("Coincident", 8, 2, 9, 1),
    Sketcher.Constraint("Coincident", 9, 2, 10, 1),
    Sketcher.Constraint("Coincident", 10, 2, 11, 1),
    Sketcher.Constraint("Coincident", 11, 2, 6, 1),
    Sketcher.Constraint("Vertical", 2),
    Sketcher.Constraint("Vertical", 5),
    Sketcher.Constraint("Vertical", 7),
    Sketcher.Constraint("Vertical", 10),
    Sketcher.Constraint("Symmetric", 2, 2, 6, 2, -1),
    Sketcher.Constraint("Symmetric", 0, 2, 8, 2, -1),
    Sketcher.Constraint("Symmetric", 5, 2, 9, 2, -1),
    Sketcher.Constraint("Symmetric", 3, 2, 11, 2, -1),
    Sketcher.Constraint("Parallel", 0, 3),
    Sketcher.Constraint("Parallel", 1, 4),
    Sketcher.Constraint("Parallel", 4, 6),
    Sketcher.Constraint("Parallel", 3, 8),
    Sketcher.Constraint("Parallel", 8, 11),
    Sketcher.Constraint("Horizontal", 2, 2, 4, 2),
    Sketcher.Constraint("Horizontal", 1, 2, 5, 2),
    Sketcher.Constraint("Angle", 0, Q("-30 deg")),
    Sketcher.Constraint("DistanceX", -1, 1, 0, 2, 71.0),
    Sketcher.Constraint("DistanceY", 6, 2, 1, 2, 35.0),
    Sketcher.Constraint("DistanceX", -1, 1, 1, 2, 73.6),
    Sketcher.Constraint("DistanceY", 2, 1, 2, 2, 3.002221),
])
pocket10 = doc.addObject("PartDesign::Pocket", "Pocket009")
body.addObject(pocket10)
pocket10.Profile = sketch19
pocket10.Length = 2

sketch20 = doc.addObject("Sketcher::SketchObject", "Sketch019")
body.addObject(sketch20)
sketch20.AttachmentSupport = (doc.XZ_Plane, [""])
sketch20.MapMode = "FlatFace"
sketch20.AttachmentOffset = App.Placement(App.Vector(0, 0, -79), App.Rotation())
sketch20.addGeometry([
    Part.Circle(App.Vector(37.2, 12.3, 0), App.Vector(0, 0, 1), 1),
    Part.Circle(App.Vector(37.2, -12.3, 0), App.Vector(0, 0, 1), 1),
], False)
sketch20.addConstraint([
    Sketcher.Constraint("Equal", 0, 1),
    Sketcher.Constraint("Symmetric", 0, 3, 1, 3, -1),
    Sketcher.Constraint("Diameter", 0, 2.0),
    Sketcher.Constraint("DistanceY", -1, 1, 0, 3, 12.3),
    Sketcher.Constraint("DistanceX", -1, 1, 0, 3, 37.186918),
])
pocket11 = doc.addObject("PartDesign::Pocket", "Pocket010")
body.addObject(pocket11)
pocket11.Profile = sketch20
pocket11.Length = 11
pocket11.Reversed = True

sketch21 = doc.addObject("Sketcher::SketchObject", "Sketch020")
body.addObject(sketch21)
sketch21.AttachmentSupport = (doc.XZ_Plane, [""])
sketch21.MapMode = "FlatFace"
sketch21.AttachmentOffset = App.Placement(App.Vector(0, 0, -74), App.Rotation())
sketch21.addGeometry([
    Part.LineSegment(App.Vector(37.2, 10, 0), App.Vector(39.2, 11.1, 0)),
    Part.LineSegment(App.Vector(39.2, 11.1, 0), App.Vector(39.2, 13.5, 0)),
    Part.LineSegment(App.Vector(39.2, 13.5, 0), App.Vector(37.2, 14.6, 0)),
    Part.LineSegment(App.Vector(37.2, 14.6, 0), App.Vector(35.2, 13.5, 0)),
    Part.LineSegment(App.Vector(35.2, 13.5, 0), App.Vector(35.2, 11.1, 0)),
    Part.LineSegment(App.Vector(35.2, 11.1, 0), App.Vector(37.2, 10, 0)),
    Part.LineSegment(App.Vector(37.2, -14.6, 0), App.Vector(39.2, -13.5, 0)),
    Part.LineSegment(App.Vector(39.2, -13.5, 0), App.Vector(39.2, -11.1, 0)),
    Part.LineSegment(App.Vector(39.2, -11.1, 0), App.Vector(37.2, -10, 0)),
    Part.LineSegment(App.Vector(37.2, -10, 0), App.Vector(35.2, -11.1, 0)),
    Part.LineSegment(App.Vector(35.2, -11.1, 0), App.Vector(35.2, -13.5, 0)),
    Part.LineSegment(App.Vector(35.2, -13.5, 0), App.Vector(37.2, -14.6, 0)),
], False)
sketch21.addConstraint([
    Sketcher.Constraint("Coincident", 0, 2, 1, 1),
    Sketcher.Constraint("Coincident", 1, 2, 2, 1),
    Sketcher.Constraint("Coincident", 2, 2, 3, 1),
    Sketcher.Constraint("Coincident", 3, 2, 4, 1),
    Sketcher.Constraint("Coincident", 4, 2, 5, 1),
    Sketcher.Constraint("Coincident", 5, 2, 0, 1),
    Sketcher.Constraint("Coincident", 6, 2, 7, 1),
    Sketcher.Constraint("Coincident", 7, 2, 8, 1),
    Sketcher.Constraint("Coincident", 8, 2, 9, 1),
    Sketcher.Constraint("Coincident", 9, 2, 10, 1),
    Sketcher.Constraint("Coincident", 10, 2, 11, 1),
    Sketcher.Constraint("Coincident", 11, 2, 6, 1),
    Sketcher.Constraint("Vertical", 1),
    Sketcher.Constraint("Vertical", 4),
    Sketcher.Constraint("Vertical", 7),
    Sketcher.Constraint("Vertical", 10),
    Sketcher.Constraint("Symmetric", 1, 2, 6, 2, -1),
    Sketcher.Constraint("Symmetric", 5, 2, 8, 2, -1),
    Sketcher.Constraint("Symmetric", 4, 2, 9, 2, -1),
    Sketcher.Constraint("Symmetric", 2, 2, 11, 2, -1),
    Sketcher.Constraint("Parallel", 0, 3),
    Sketcher.Constraint("Parallel", 2, 5),
    Sketcher.Constraint("Parallel", 3, 6),
    Sketcher.Constraint("Parallel", 5, 8),
    Sketcher.Constraint("Parallel", 8, 11),
    Sketcher.Constraint("Horizontal", 1, 2, 3, 2),
    Sketcher.Constraint("Horizontal", 0, 2, 4, 2),
    Sketcher.Constraint("Angle", 0, Q("30 deg")),
    Sketcher.Constraint("DistanceX", 2, 2, 1, 2, 2.0),
    Sketcher.Constraint("DistanceY", 6, 2, 0, 2, 24.6),
    Sketcher.Constraint("DistanceY", 1, 1, 1, 2, 2.309401),
    Sketcher.Constraint("DistanceX", -1, 1, 0, 2, 39.186918),
])
pocket12 = doc.addObject("PartDesign::Pocket", "Pocket011")
body.addObject(pocket12)
pocket12.Profile = sketch21
pocket12.Length = 1.7

sketch22 = doc.addObject("Sketcher::SketchObject", "Sketch021")
body.addObject(sketch22)
sketch22.AttachmentSupport = (doc.XY_Plane, [""])
sketch22.MapMode = "FlatFace"
sketch22.AttachmentOffset = App.Placement(App.Vector(0, 0, -9), App.Rotation())
sketch22.addGeometry([
    Part.LineSegment(App.Vector(-34, 14, 0), App.Vector(-34, 94, 0)),
    Part.LineSegment(App.Vector(-34, 94, 0), App.Vector(54, 94, 0)),
    Part.LineSegment(App.Vector(54, 94, 0), App.Vector(54, -9, 0)),
    Part.LineSegment(App.Vector(54, -9, 0), App.Vector(-56, -9, 0)),
    Part.LineSegment(App.Vector(-56, -9, 0), App.Vector(-56, 14, 0)),
    Part.LineSegment(App.Vector(-56, 14, 0), App.Vector(-34, 14, 0)),
], False)
sketch22.addConstraint([
    Sketcher.Constraint("Coincident", 0, 2, 1, 1),
    Sketcher.Constraint("Coincident", 1, 2, 2, 1),
    Sketcher.Constraint("Coincident", 2, 2, 3, 1),
    Sketcher.Constraint("Coincident", 3, 2, 4, 1),
    Sketcher.Constraint("Coincident", 4, 2, 5, 1),
    Sketcher.Constraint("Coincident", 5, 2, 0, 1),
    Sketcher.Constraint("Vertical", 0),
    Sketcher.Constraint("Horizontal", 1),
    Sketcher.Constraint("Vertical", 2),
    Sketcher.Constraint("Horizontal", 3),
    Sketcher.Constraint("Vertical", 4),
    Sketcher.Constraint("Horizontal", 5),
    Sketcher.Constraint("DistanceY", -1, 1, 4, 2, 14.0),
    Sketcher.Constraint("DistanceY", 2, 2, 2, 1, 103.409999),
    Sketcher.Constraint("DistanceX", 3, 2, 3, 1, 109.760301),
    Sketcher.Constraint("DistanceY", 0, 1, 0, 2, 80.49138),
    Sketcher.Constraint("DistanceX", 1, 1, 1, 2, 88.438485),
    Sketcher.Constraint("DistanceX", 0, 2, -1, 1, 34.186918),
])
pocket13 = doc.addObject("PartDesign::Pocket", "Pocket012")
body.addObject(pocket13)
pocket13.Profile = sketch22
pocket13.Type = "ThroughAll"
pocket13.Midplane = True

sketch23 = doc.addObject("Sketcher::SketchObject", "Sketch022")
body.addObject(sketch23)
sketch23.AttachmentSupport = (doc.YZ_Plane, [""])
sketch23.MapMode = "FlatFace"
sketch23.AttachmentOffset = App.Placement(App.Vector(0, 0, -34.186918), App.Rotation())
sketch23.addGeometry([
    Part.LineSegment(App.Vector(19, 9, 0), App.Vector(14, 9, 0)),
    Part.LineSegment(App.Vector(14, 9, 0), App.Vector(14, -9, 0)),
    Part.LineSegment(App.Vector(14, -9, 0), App.Vector(19, -9, 0)),
    Part.LineSegment(App.Vector(19, -9, 0), App.Vector(19, 9, 0)),
], False)
sketch23.addConstraint([
    Sketcher.Constraint("Coincident", 0, 2, 1, 1),
    Sketcher.Constraint("Coincident", 1, 2, 2, 1),
    Sketcher.Constraint("Coincident", 2, 2, 3, 1),
    Sketcher.Constraint("Coincident", 3, 2, 0, 1),
    Sketcher.Constraint("Horizontal", 0),
    Sketcher.Constraint("Vertical", 1),
    Sketcher.Constraint("Horizontal", 2),
    Sketcher.Constraint("Vertical", 3),
    Sketcher.Constraint("DistanceX", 0, 2, 0, 1, 5.0),
    Sketcher.Constraint("DistanceY", 1, 2, 1, 1, 18.0),
    Sketcher.Constraint("DistanceX", -1, 1, 0, 2, 14.0),
    Sketcher.Constraint("DistanceY", -1, 1, 0, 2, 9.0),
])
pad10 = doc.addObject("PartDesign::Pad", "Pad009")
body.addObject(pad10)
pad10.Profile = sketch23
pad10.Type = "TwoLengths"
pad10.Length = 10
pad10.Length2 = 6
doc.recompute()

fillet9 = doc.addObject("PartDesign::Fillet", "Fillet008")
body.addObject(fillet9)
fillet9.Base = (pad10, edges_at(pad10, [(-24.187, 19, 0)]))
fillet9.Radius = 2

sketch24 = doc.addObject("Sketcher::SketchObject", "Sketch023")
body.addObject(sketch24)
sketch24.AttachmentSupport = (doc.YZ_Plane, [""])
sketch24.MapMode = "FlatFace"
sketch24.AttachmentOffset = App.Placement(App.Vector(0, 0, -34.186918), App.Rotation())
sketch24.addGeometry([
    Part.LineSegment(App.Vector(23, 3, 0), App.Vector(19, 3, 0)),
    Part.LineSegment(App.Vector(19, 3, 0), App.Vector(19, -3, 0)),
    Part.LineSegment(App.Vector(19, -3, 0), App.Vector(23, -3, 0)),
    Part.LineSegment(App.Vector(23, -3, 0), App.Vector(23, 3, 0)),
], False)
sketch24.addConstraint([
    Sketcher.Constraint("Coincident", 0, 2, 1, 1),
    Sketcher.Constraint("Coincident", 1, 2, 2, 1),
    Sketcher.Constraint("Coincident", 2, 2, 3, 1),
    Sketcher.Constraint("Coincident", 3, 2, 0, 1),
    Sketcher.Constraint("Horizontal", 0),
    Sketcher.Constraint("Vertical", 1),
    Sketcher.Constraint("Horizontal", 2),
    Sketcher.Constraint("Vertical", 3),
    Sketcher.Constraint("DistanceX", 0, 2, 0, 1, 4.0),
    Sketcher.Constraint("DistanceY", 1, 2, 1, 1, 6.0),
    Sketcher.Constraint("DistanceX", -1, 1, 0, 2, 19.0),
    Sketcher.Constraint("DistanceY", -1, 1, 0, 2, 3.0),
])
pocket14 = doc.addObject("PartDesign::Pocket", "Pocket013")
body.addObject(pocket14)
pocket14.Profile = sketch24
pocket14.Length = 10

sketch25 = doc.addObject("Sketcher::SketchObject", "Sketch024")
body.addObject(sketch25)
sketch25.AttachmentSupport = (doc.XZ_Plane, [""])
sketch25.MapMode = "FlatFace"
sketch25.AttachmentOffset = App.Placement(App.Vector(0, 0, -19), App.Rotation())
sketch25.addGeometry([
    Part.Circle(App.Vector(-30.2, 4.5, 0), App.Vector(0, 0, 1), 1.5),
    Part.Circle(App.Vector(-30.2, -4.5, 0), App.Vector(0, 0, 1), 1.5),
], False)
sketch25.addConstraint([
    Sketcher.Constraint("Equal", 0, 1),
    Sketcher.Constraint("Symmetric", 0, 3, 1, 3, -1),
    Sketcher.Constraint("Diameter", 0, 3.0),
    Sketcher.Constraint("DistanceY", 1, 3, 0, 3, 9.0),
    Sketcher.Constraint("DistanceX", 0, 3, -1, 1, 30.186918),
])
pocket15 = doc.addObject("PartDesign::Pocket", "Pocket014")
body.addObject(pocket15)
pocket15.Profile = sketch25
pocket15.Length = 100
pocket15.Reversed = True

doc.recompute()
